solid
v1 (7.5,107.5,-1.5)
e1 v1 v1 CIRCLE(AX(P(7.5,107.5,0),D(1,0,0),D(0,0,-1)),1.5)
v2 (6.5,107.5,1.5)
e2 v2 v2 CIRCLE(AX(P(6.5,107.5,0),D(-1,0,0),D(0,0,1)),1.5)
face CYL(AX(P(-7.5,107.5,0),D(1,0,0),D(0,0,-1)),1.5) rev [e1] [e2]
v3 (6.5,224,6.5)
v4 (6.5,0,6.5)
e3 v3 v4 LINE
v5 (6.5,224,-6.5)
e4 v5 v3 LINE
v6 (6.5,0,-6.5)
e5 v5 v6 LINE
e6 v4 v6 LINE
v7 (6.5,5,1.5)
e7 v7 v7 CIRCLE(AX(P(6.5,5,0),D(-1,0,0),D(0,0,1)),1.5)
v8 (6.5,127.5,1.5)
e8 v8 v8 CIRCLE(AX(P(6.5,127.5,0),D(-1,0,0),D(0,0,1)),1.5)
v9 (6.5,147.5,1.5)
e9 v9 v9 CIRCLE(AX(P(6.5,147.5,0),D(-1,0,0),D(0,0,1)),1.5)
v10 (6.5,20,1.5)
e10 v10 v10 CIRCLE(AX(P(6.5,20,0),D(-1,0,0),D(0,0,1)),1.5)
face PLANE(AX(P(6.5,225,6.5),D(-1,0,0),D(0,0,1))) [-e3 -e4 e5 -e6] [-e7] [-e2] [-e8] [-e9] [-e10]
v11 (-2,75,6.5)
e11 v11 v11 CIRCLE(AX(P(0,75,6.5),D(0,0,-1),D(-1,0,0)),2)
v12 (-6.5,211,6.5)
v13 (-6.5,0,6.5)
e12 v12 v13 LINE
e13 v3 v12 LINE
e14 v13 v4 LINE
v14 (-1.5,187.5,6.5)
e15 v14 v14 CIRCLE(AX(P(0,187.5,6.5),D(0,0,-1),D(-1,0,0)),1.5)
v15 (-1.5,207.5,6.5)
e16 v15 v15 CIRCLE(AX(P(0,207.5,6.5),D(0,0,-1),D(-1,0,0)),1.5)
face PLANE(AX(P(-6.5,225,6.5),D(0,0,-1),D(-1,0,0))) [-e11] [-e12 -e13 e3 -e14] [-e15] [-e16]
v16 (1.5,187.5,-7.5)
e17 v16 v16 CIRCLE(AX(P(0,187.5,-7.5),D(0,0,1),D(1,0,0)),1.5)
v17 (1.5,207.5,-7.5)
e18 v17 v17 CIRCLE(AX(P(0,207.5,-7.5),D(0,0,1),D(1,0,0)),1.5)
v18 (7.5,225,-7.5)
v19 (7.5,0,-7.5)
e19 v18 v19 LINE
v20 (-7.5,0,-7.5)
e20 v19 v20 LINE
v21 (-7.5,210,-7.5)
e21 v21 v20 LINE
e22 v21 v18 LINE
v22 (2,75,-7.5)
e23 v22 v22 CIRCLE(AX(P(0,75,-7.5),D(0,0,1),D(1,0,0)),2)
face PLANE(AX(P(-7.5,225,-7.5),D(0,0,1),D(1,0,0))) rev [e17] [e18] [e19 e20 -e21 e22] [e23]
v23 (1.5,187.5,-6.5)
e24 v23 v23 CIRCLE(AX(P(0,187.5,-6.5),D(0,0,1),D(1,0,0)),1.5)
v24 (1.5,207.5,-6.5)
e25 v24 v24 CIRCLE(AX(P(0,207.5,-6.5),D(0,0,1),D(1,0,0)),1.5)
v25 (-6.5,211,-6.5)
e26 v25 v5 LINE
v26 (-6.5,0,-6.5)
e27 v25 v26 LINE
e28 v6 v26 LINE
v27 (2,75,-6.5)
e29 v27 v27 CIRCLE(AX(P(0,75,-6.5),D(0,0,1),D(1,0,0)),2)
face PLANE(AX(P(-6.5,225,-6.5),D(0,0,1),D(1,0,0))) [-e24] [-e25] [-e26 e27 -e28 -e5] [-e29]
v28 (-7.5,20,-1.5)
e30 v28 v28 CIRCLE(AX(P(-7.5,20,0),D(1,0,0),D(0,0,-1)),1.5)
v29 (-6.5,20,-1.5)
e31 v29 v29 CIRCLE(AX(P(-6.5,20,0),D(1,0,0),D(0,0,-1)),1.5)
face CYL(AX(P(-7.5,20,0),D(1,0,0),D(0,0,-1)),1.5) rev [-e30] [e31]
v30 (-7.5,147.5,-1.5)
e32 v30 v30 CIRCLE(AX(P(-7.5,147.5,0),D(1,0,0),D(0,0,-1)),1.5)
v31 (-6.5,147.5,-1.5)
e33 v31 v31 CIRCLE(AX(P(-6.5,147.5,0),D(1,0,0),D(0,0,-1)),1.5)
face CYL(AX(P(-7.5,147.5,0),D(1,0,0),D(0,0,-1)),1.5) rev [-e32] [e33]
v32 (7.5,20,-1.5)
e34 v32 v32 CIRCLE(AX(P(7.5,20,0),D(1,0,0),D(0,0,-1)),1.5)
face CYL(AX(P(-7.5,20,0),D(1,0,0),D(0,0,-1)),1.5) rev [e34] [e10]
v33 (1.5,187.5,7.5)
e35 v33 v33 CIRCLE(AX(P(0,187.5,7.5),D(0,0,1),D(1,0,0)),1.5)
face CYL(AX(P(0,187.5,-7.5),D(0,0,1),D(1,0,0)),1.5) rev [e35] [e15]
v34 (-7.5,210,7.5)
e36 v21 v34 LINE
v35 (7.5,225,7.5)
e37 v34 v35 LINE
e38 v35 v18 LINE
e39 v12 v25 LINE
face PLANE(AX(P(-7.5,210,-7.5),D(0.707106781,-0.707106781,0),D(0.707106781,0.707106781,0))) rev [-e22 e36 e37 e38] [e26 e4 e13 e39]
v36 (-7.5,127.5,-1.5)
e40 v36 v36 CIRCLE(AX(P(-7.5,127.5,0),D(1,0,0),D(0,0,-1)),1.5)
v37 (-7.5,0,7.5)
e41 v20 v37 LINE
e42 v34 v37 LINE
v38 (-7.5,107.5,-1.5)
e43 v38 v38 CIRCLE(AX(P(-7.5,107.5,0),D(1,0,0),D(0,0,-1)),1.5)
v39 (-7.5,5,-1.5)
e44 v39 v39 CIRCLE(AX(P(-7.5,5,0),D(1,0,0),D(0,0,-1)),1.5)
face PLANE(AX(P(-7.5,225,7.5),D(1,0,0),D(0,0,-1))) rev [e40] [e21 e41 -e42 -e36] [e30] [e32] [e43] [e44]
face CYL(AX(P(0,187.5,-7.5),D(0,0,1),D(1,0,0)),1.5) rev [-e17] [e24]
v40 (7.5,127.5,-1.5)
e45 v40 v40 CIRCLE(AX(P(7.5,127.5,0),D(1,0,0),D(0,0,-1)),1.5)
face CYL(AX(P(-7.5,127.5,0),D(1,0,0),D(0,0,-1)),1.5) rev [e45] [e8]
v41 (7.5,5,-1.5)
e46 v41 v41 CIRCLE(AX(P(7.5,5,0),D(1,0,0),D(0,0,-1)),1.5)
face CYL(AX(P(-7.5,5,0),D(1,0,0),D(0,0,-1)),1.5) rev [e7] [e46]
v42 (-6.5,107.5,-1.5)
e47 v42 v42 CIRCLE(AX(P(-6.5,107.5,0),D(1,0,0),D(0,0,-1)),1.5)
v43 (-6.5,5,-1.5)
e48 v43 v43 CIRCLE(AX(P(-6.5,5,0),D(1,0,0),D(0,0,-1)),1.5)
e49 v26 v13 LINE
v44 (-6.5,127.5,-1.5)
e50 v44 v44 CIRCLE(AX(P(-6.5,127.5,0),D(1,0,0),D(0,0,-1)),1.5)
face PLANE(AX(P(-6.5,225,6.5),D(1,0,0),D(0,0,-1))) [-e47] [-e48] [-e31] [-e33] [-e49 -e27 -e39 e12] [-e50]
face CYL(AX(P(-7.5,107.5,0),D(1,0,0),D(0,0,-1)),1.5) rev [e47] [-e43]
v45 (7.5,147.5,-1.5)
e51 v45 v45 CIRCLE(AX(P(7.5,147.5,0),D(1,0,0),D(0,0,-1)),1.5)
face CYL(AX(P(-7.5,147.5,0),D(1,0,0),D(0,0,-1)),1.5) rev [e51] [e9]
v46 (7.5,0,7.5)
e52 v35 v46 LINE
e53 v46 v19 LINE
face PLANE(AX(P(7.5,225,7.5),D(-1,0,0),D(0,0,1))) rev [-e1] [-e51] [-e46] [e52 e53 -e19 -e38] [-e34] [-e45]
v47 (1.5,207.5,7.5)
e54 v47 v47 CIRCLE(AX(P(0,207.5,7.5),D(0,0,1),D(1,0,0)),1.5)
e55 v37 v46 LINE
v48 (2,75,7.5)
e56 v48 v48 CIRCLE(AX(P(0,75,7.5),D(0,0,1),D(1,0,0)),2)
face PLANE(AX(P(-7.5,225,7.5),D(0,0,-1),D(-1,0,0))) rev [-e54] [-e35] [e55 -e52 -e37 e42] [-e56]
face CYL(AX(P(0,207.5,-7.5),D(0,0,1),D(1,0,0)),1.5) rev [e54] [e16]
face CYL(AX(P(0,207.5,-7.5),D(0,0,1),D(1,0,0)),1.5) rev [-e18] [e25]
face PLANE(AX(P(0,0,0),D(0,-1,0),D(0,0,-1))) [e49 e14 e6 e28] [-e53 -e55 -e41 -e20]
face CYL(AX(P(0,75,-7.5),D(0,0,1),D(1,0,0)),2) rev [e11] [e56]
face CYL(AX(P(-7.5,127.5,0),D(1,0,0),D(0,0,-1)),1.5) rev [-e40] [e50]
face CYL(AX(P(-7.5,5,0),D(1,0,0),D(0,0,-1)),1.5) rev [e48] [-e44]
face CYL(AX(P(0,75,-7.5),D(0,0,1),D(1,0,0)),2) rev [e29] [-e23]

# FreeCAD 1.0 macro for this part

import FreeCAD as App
import Part
import Sketcher

V = App.Vector

doc = App.newDocument("Part")
body = doc.addObject("PartDesign::Body", "Body")

sketch1 = body.newObject("Sketcher::SketchObject", "Sketch")
sketch1.AttachmentSupport = (doc.getObject("XZ_Plane"), [""])
sketch1.MapMode = "FlatFace"
sketch1.addGeometry([
    Part.LineSegment(V(-8, -8, 0), V(-8, 8, 0)),
    Part.LineSegment(V(-8, 8, 0), V(8, 8, 0)),
    Part.LineSegment(V(8, 8, 0), V(8, -8, 0)),
    Part.LineSegment(V(8, -8, 0), V(-8, -8, 0)),
    Part.LineSegment(V(6, 6, 0), V(-6, 6, 0)),
    Part.LineSegment(V(-6, 6, 0), V(-6, -6, 0)),
    Part.LineSegment(V(-6, -6, 0), V(6, -6, 0)),
    Part.LineSegment(V(6, -6, 0), V(6, 6, 0)),
], False)
sketch1.addConstraint([
    Sketcher.Constraint("Coincident", 0, 2, 1, 1),
    Sketcher.Constraint("Coincident", 1, 2, 2, 1),
    Sketcher.Constraint("Coincident", 2, 2, 3, 1),
    Sketcher.Constraint("Coincident", 3, 2, 0, 1),
    Sketcher.Constraint("Coincident", 4, 2, 5, 1),
    Sketcher.Constraint("Coincident", 5, 2, 6, 1),
    Sketcher.Constraint("Coincident", 6, 2, 7, 1),
    Sketcher.Constraint("Coincident", 7, 2, 4, 1),
    Sketcher.Constraint("Vertical", 0),
    Sketcher.Constraint("Horizontal", 1),
    Sketcher.Constraint("Vertical", 2),
    Sketcher.Constraint("Horizontal", 3),
    Sketcher.Constraint("Horizontal", 4),
    Sketcher.Constraint("Vertical", 5),
    Sketcher.Constraint("Horizontal", 6),
    Sketcher.Constraint("Vertical", 7),
    Sketcher.Constraint("Symmetric", 0, 2, 2, 2, -1, 1),
    Sketcher.Constraint("Symmetric", 4, 2, 6, 2, -1, 1),
    Sketcher.Constraint("Equal", 3, 0),
    Sketcher.Constraint("Equal", 6, 5),
    Sketcher.Constraint("DistanceX", 1, 1, 1, 2, 15.0),
    Sketcher.Constraint("DistanceX", 4, 2, 4, 1, 13.0),
])
pad1 = body.newObject("PartDesign::Pad", "Pad")
pad1.Profile = sketch1
pad1.Length = 225
pad1.Reversed = True

sketch2 = body.newObject("Sketcher::SketchObject", "Sketch001")
sketch2.AttachmentSupport = (doc.getObject("XY_Plane"), [""])
sketch2.MapMode = "FlatFace"
sketch2.AttachmentOffset = App.Placement(V(0, 0, 7.5), App.Rotation())
sketch2.addGeometry([
    Part.Circle(V(0, 207.5, 0), V(0, 0, 1), 1.5),
    Part.Circle(V(0, 187.5, 0), V(0, 0, 1), 1.5),
    Part.Circle(V(0, 75, 0), V(0, 0, 1), 2),
    Part.LineSegment(V(7.5, 225, 0), V(-7.5, 225, 0)),
    Part.LineSegment(V(-7.5, 225, 0), V(-7.5, 210, 0)),
    Part.LineSegment(V(-7.5, 210, 0), V(7.5, 225, 0)),
], False)
sketch2.addConstraint([
    Sketcher.Constraint("Coincident", 3, 2, 4, 1),
    Sketcher.Constraint("Coincident", 4, 2, 5, 1),
    Sketcher.Constraint("Coincident", 5, 2, 3, 1),
    Sketcher.Constraint("Horizontal", 3),
    Sketcher.Constraint("Vertical", 4),
    Sketcher.Constraint("Equal", 0, 1),
    Sketcher.Constraint("PointOnObject", 0, 3, -2),
    Sketcher.Constraint("PointOnObject", 1, 3, -2),
    Sketcher.Constraint("PointOnObject", 2, 3, -2),
    Sketcher.Constraint("Equal", 3, 4),
    Sketcher.Constraint("Diameter", 0, 3.0),
    Sketcher.Constraint("Diameter", 2, 4.0),
    Sketcher.Constraint("DistanceX", 3, 2, 3, 1, 15.0),
    Sketcher.Constraint("DistanceY", -1, 1, 2, 3, 75.0),
    Sketcher.Constraint("DistanceY", -1, 1, 3, 2, 225.0),
    Sketcher.Constraint("DistanceY", 1, 3, 0, 3, 20.0),
    Sketcher.Constraint("DistanceY", -1, 1, 0, 3, 207.5),
    Sketcher.Constraint("DistanceX", 3, 2, -1, 1, 7.5),
])
pocket1 = body.newObject("PartDesign::Pocket", "Pocket")
pocket1.Profile = sketch2
pocket1.Type = "ThroughAll"

sketch3 = body.newObject("Sketcher::SketchObject", "Sketch002")
sketch3.AttachmentSupport = (doc.getObject("YZ_Plane"), [""])
sketch3.MapMode = "FlatFace"
sketch3.AttachmentOffset = App.Placement(V(0, 0, 7.5), App.Rotation())
sketch3.addGeometry([
    Part.Circle(V(5, 0, 0), V(0, 0, 1), 1.5),
    Part.Circle(V(20, 0, 0), V(0, 0, 1), 1.5),
    Part.Circle(V(127.5, 0, 0), V(0, 0, 1), 1.5),
    Part.Circle(V(147.5, 0, 0), V(0, 0, 1), 1.5),
    Part.Circle(V(107.5, 0, 0), V(0, 0, 1), 1.5),
], False)
sketch3.addConstraint([
    Sketcher.Constraint("Equal", 0, 1),
    Sketcher.Constraint("Equal", 1, 2),
    Sketcher.Constraint("Equal", 2, 3),
    Sketcher.Constraint("Equal", 3, 4),
    Sketcher.Constraint("PointOnObject", 0, 3, -1),
    Sketcher.Constraint("PointOnObject", 1, 3, -1),
    Sketcher.Constraint("PointOnObject", 2, 3, -1),
    Sketcher.Constraint("PointOnObject", 3, 3, -1),
    Sketcher.Constraint("PointOnObject", 4, 3, -1),
    Sketcher.Constraint("Diameter", 0, 3.0),
    Sketcher.Constraint("DistanceX", -1, 1, 0, 3, 5.0),
    Sketcher.Constraint("DistanceX", -1, 1, 1, 3, 20.0),
    Sketcher.Constraint("DistanceX", 2, 3, 3, 3, 20.0),
    Sketcher.Constraint("DistanceX", 4, 3, 2, 3, 20.0),
    Sketcher.Constraint("DistanceX", -1, 1, 2, 3, 127.5),
])
pocket2 = body.newObject("PartDesign::Pocket", "Pocket001")
pocket2.Profile = sketch3
pocket2.Type = "ThroughAll"

doc.recompute()
